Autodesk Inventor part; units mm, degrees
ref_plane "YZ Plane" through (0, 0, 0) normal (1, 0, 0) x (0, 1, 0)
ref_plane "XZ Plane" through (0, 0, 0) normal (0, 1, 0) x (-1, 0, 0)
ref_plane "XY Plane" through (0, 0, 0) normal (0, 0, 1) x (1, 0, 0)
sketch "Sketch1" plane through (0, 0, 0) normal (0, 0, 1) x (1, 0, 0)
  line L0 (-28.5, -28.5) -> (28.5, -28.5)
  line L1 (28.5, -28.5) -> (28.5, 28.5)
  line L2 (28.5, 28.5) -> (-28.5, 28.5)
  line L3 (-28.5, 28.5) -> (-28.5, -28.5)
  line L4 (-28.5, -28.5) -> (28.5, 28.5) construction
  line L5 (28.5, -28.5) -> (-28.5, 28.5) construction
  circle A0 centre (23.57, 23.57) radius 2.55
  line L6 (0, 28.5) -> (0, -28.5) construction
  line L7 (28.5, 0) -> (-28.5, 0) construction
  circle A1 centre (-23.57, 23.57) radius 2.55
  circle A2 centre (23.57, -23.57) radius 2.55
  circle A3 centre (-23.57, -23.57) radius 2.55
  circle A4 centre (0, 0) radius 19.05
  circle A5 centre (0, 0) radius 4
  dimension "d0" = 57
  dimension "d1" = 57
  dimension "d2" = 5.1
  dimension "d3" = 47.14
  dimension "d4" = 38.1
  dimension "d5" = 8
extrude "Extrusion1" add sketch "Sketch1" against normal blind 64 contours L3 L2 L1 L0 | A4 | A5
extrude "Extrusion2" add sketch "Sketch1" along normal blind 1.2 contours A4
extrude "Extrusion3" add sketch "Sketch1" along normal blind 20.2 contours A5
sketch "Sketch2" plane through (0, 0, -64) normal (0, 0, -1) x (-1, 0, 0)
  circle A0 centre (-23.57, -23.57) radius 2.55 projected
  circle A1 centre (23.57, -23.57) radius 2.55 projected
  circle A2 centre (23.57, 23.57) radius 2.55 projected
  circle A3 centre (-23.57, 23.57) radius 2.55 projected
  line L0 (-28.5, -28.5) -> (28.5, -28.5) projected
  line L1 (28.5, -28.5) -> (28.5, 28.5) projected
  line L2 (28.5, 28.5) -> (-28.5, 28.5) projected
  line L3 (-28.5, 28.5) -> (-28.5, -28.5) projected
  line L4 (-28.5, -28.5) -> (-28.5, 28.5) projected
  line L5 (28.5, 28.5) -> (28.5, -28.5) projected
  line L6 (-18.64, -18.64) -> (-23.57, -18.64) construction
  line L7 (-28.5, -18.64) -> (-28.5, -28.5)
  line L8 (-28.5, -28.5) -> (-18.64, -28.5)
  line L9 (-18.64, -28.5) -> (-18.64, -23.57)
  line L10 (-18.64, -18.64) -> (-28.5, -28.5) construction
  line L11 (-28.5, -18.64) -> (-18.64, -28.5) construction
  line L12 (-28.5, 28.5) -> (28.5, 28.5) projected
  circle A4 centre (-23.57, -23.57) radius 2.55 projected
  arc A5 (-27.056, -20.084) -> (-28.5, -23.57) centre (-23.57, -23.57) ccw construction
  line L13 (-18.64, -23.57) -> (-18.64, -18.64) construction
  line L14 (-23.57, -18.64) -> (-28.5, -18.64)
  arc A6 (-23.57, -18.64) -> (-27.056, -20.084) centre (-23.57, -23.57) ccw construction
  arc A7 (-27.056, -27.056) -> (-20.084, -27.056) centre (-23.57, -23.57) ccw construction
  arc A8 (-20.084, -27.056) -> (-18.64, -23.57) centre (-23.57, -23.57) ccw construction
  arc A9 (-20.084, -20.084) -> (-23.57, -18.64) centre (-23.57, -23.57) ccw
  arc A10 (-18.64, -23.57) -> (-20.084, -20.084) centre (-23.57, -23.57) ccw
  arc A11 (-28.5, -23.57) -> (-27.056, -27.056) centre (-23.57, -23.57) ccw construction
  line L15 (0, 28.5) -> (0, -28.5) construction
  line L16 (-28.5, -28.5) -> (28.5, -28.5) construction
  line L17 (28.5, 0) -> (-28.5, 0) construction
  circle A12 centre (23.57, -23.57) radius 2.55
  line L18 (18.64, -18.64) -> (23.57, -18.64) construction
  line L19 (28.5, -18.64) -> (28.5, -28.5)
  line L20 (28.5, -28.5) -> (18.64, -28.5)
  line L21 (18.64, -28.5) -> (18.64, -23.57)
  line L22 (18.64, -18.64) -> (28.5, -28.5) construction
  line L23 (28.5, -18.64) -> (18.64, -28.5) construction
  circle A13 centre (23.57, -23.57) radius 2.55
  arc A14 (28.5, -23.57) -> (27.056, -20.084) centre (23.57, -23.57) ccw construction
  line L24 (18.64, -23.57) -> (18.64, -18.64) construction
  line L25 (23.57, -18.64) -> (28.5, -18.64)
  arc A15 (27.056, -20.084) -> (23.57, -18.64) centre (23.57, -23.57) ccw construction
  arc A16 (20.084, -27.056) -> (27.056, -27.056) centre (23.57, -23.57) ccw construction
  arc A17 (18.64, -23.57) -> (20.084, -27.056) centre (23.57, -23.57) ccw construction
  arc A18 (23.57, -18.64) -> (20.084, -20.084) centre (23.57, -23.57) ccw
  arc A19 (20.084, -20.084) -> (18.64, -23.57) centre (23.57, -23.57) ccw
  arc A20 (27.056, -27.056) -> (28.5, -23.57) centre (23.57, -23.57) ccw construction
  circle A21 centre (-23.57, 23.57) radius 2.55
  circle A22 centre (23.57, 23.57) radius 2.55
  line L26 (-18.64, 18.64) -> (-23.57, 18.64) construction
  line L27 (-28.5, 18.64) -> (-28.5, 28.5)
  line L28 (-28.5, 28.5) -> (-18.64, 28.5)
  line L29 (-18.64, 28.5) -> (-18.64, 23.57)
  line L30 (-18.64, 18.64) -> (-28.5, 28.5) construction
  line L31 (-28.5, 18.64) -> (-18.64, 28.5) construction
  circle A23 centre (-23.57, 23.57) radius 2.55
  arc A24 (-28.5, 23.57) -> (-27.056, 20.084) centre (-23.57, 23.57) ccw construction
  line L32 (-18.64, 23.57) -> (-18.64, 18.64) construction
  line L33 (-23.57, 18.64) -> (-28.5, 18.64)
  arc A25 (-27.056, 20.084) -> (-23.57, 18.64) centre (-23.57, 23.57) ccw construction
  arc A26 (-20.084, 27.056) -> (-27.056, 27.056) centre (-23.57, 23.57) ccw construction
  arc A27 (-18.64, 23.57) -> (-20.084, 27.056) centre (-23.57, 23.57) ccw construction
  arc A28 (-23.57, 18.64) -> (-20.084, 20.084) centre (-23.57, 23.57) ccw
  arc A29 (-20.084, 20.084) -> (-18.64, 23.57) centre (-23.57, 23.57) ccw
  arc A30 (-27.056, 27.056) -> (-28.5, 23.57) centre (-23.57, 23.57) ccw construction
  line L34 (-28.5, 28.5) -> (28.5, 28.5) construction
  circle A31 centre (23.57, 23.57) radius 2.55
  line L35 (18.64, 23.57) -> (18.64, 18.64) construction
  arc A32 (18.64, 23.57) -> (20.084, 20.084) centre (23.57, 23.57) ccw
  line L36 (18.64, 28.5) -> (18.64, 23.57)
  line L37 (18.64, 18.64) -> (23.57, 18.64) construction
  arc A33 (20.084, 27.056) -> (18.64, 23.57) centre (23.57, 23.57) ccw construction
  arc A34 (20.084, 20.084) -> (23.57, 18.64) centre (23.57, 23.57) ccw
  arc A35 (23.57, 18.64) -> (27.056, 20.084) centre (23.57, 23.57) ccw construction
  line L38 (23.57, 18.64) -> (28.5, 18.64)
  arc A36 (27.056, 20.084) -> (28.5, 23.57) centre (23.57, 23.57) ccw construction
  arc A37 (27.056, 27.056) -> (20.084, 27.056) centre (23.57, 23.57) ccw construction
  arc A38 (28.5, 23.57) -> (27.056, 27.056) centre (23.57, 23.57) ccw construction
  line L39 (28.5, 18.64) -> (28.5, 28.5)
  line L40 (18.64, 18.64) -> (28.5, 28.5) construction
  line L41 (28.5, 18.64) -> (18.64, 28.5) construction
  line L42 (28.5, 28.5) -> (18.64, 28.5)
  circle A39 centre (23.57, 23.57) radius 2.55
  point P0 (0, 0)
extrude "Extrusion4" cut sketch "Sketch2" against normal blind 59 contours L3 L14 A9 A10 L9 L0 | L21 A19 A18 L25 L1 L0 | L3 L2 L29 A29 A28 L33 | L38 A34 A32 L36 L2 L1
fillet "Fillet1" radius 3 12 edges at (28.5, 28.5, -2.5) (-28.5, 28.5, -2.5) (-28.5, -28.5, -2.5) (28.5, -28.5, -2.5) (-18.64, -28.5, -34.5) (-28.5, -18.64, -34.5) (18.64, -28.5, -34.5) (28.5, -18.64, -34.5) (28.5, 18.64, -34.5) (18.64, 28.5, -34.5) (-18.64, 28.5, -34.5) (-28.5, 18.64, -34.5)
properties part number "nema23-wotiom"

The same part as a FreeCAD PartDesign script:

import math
import FreeCAD as App
import Part
import Sketcher
from FreeCAD import Vector


def edges_at(feature, points):
    """Names of the edges that pass closest to the given points."""
    edges = feature.Shape.Edges
    near = lambda p: min(range(len(edges)), key=lambda i: edges[i].distToShape(Part.Vertex(*p))[0])
    return sorted({f"Edge{near(p) + 1}" for p in points})

doc = App.newDocument("Part")
body = doc.addObject("PartDesign::Body", "Body")

# Sketch on XY plane
sketch1 = body.newObject("Sketcher::SketchObject", "Sketch")
sketch1.AttachmentSupport = (doc.getObject("XY_Plane"), [""])
sketch1.MapMode = "FlatFace"
sketch1.addGeometry(Part.LineSegment(Vector(-28.5, 28.5, 0), Vector(-28.5, -28.5, 0)), False)
sketch1.addGeometry(Part.LineSegment(Vector(-28.5, -28.5, 0), Vector(28.5, -28.5, 0)), False)
sketch1.addGeometry(Part.LineSegment(Vector(28.5, -28.5, 0), Vector(28.5, 28.5, 0)), False)
sketch1.addGeometry(Part.LineSegment(Vector(28.5, 28.5, 0), Vector(-28.5, 28.5, 0)), False)
sketch1.addGeometry(Part.Circle(Vector(-23.6, -23.6, 0), Vector(0, 0, 1), 2.5), False)
sketch1.addGeometry(Part.Circle(Vector(23.6, -23.6, 0), Vector(0, 0, 1), 2.5), False)
sketch1.addGeometry(Part.Circle(Vector(-23.6, 23.6, 0), Vector(0, 0, 1), 2.5), False)
sketch1.addGeometry(Part.Circle(Vector(23.6, 23.6, 0), Vector(0, 0, 1), 2.5), False)
sketch1.addConstraint(Sketcher.Constraint("Coincident", 0, 2, 1, 1))
sketch1.addConstraint(Sketcher.Constraint("Coincident", 1, 2, 2, 1))
sketch1.addConstraint(Sketcher.Constraint("Coincident", 2, 2, 3, 1))
sketch1.addConstraint(Sketcher.Constraint("Coincident", 3, 2, 0, 1))
sketch1.addConstraint(Sketcher.Constraint("Vertical", 0))
sketch1.addConstraint(Sketcher.Constraint("Horizontal", 1))
sketch1.addConstraint(Sketcher.Constraint("Vertical", 2))
sketch1.addConstraint(Sketcher.Constraint("Horizontal", 3))
sketch1.addConstraint(Sketcher.Constraint("Equal", 4, 5))
sketch1.addConstraint(Sketcher.Constraint("Equal", 5, 6))
sketch1.addConstraint(Sketcher.Constraint("Equal", 6, 7))
sketch1.addConstraint(Sketcher.Constraint("Symmetric", 5, 3, 6, 3, -1, 1))
sketch1.addConstraint(Sketcher.Constraint("Symmetric", 4, 3, 7, 3, -1, 1))
sketch1.addConstraint(Sketcher.Constraint("Symmetric", 0, 2, 2, 2, -1, 1))
sketch1.addConstraint(Sketcher.Constraint("Symmetric", 4, 3, 5, 3, -2))
sketch1.addConstraint(Sketcher.Constraint("Equal", 3, 0))
sketch1.addConstraint(Sketcher.Constraint("Diameter", 4, 5.1))
sketch1.addConstraint(Sketcher.Constraint("DistanceX", 1, 1, 1, 2, 57.0))
sketch1.addConstraint(Sketcher.Constraint("DistanceX", 4, 3, 5, 3, 47.14))
sketch1.addConstraint(Sketcher.Constraint("DistanceY", 4, 3, 6, 3, 47.14))
pad1 = body.newObject("PartDesign::Pad", "Pad")
pad1.Profile = sketch1
pad1.Length = 64
pad1.Reversed = True

# Sketch on XY plane
sketch2 = body.newObject("Sketcher::SketchObject", "Sketch001")
sketch2.AttachmentSupport = (doc.getObject("XY_Plane"), [""])
sketch2.MapMode = "FlatFace"
sketch2.addGeometry(Part.Circle(Vector(0, 0, 0), Vector(0, 0, 1), 19.1), False)
sketch2.addGeometry(Part.Circle(Vector(0, 0, 0), Vector(0, 0, 1), 4), False)
sketch2.addConstraint(Sketcher.Constraint("Coincident", 0, 3, -1, 1))
sketch2.addConstraint(Sketcher.Constraint("Coincident", 1, 3, -1, 1))
sketch2.addConstraint(Sketcher.Constraint("Diameter", 1, 8.0))
sketch2.addConstraint(Sketcher.Constraint("Diameter", 0, 38.1))
pad2 = body.newObject("PartDesign::Pad", "Pad001")
pad2.Profile = sketch2
pad2.Length = 1.2

# Sketch on XY plane
sketch3 = body.newObject("Sketcher::SketchObject", "Sketch002")
sketch3.AttachmentSupport = (doc.getObject("XY_Plane"), [""])
sketch3.MapMode = "FlatFace"
sketch3.addGeometry(Part.Circle(Vector(0, 0, 0), Vector(0, 0, 1), 4), False)
sketch3.addConstraint(Sketcher.Constraint("Coincident", 0, 3, -1, 1))
sketch3.addConstraint(Sketcher.Constraint("Diameter", 0, 8.0))
pad3 = body.newObject("PartDesign::Pad", "Pad002")
pad3.Profile = sketch3
pad3.Length = 20.2

# Sketch on XY plane
sketch4 = body.newObject("Sketcher::SketchObject", "Sketch003")
sketch4.AttachmentSupport = (doc.getObject("XY_Plane"), [""])
sketch4.MapMode = "FlatFace"
sketch4.AttachmentOffset = App.Placement(Vector(0, 0, -64), App.Rotation())
sketch4.addGeometry(Part.LineSegment(Vector(28.5, -18.6, 0), Vector(28.5, -28.5, 0)), False)
sketch4.addGeometry(Part.LineSegment(Vector(28.5, -28.5, 0), Vector(18.6, -28.5, 0)), False)
sketch4.addGeometry(Part.LineSegment(Vector(18.6, -28.5, 0), Vector(18.6, -23.6, 0)), False)
sketch4.addGeometry(Part.ArcOfCircle(Part.Circle(Vector(23.6, -23.6, 0), Vector(0, 0, 1), 4.9), math.radians(135), math.radians(180)), False)
sketch4.addGeometry(Part.ArcOfCircle(Part.Circle(Vector(23.6, -23.6, 0), Vector(0, 0, 1), 4.9), math.radians(90), math.radians(135)), False)
sketch4.addGeometry(Part.LineSegment(Vector(23.6, -18.6, 0), Vector(28.5, -18.6, 0)), False)
sketch4.addGeometry(Part.Circle(Vector(23.6, -23.6, 0), Vector(0, 0, 1), 2.5), False)
sketch4.addGeometry(Part.LineSegment(Vector(-18.6, -23.6, 0), Vector(-18.6, -28.5, 0)), False)
sketch4.addGeometry(Part.LineSegment(Vector(-18.6, -28.5, 0), Vector(-28.5, -28.5, 0)), False)
sketch4.addGeometry(Part.LineSegment(Vector(-28.5, -28.5, 0), Vector(-28.5, -18.6, 0)), False)
sketch4.addGeometry(Part.LineSegment(Vector(-28.5, -18.6, 0), Vector(-23.6, -18.6, 0)), False)
sketch4.addGeometry(Part.ArcOfCircle(Part.Circle(Vector(-23.6, -23.6, 0), Vector(0, 0, 1), 4.9), math.radians(45), math.radians(90)), False)
sketch4.addGeometry(Part.ArcOfCircle(Part.Circle(Vector(-23.6, -23.6, 0), Vector(0, 0, 1), 4.9), math.radians(0), math.radians(45)), False)
sketch4.addGeometry(Part.Circle(Vector(-23.6, -23.6, 0), Vector(0, 0, 1), 2.5), False)
sketch4.addGeometry(Part.LineSegment(Vector(28.5, 28.5, 0), Vector(28.5, 18.6, 0)), False)
sketch4.addGeometry(Part.LineSegment(Vector(28.5, 18.6, 0), Vector(23.6, 18.6, 0)), False)
sketch4.addGeometry(Part.ArcOfCircle(Part.Circle(Vector(23.6, 23.6, 0), Vector(0, 0, 1), 4.9), math.radians(-135), math.radians(-90)), False)
sketch4.addGeometry(Part.ArcOfCircle(Part.Circle(Vector(23.6, 23.6, 0), Vector(0, 0, 1), 4.9), math.radians(180), math.radians(225)), False)
sketch4.addGeometry(Part.LineSegment(Vector(18.6, 23.6, 0), Vector(18.6, 28.5, 0)), False)
sketch4.addGeometry(Part.LineSegment(Vector(18.6, 28.5, 0), Vector(28.5, 28.5, 0)), False)
sketch4.addGeometry(Part.Circle(Vector(23.6, 23.6, 0), Vector(0, 0, 1), 2.5), False)
sketch4.addGeometry(Part.LineSegment(Vector(-23.6, 18.6, 0), Vector(-28.5, 18.6, 0)), False)
sketch4.addGeometry(Part.LineSegment(Vector(-28.5, 18.6, 0), Vector(-28.5, 28.5, 0)), False)
sketch4.addGeometry(Part.LineSegment(Vector(-28.5, 28.5, 0), Vector(-18.6, 28.5, 0)), False)
sketch4.addGeometry(Part.LineSegment(Vector(-18.6, 28.5, 0), Vector(-18.6, 23.6, 0)), False)
sketch4.addGeometry(Part.ArcOfCircle(Part.Circle(Vector(-23.6, 23.6, 0), Vector(0, 0, 1), 4.9), math.radians(-45), math.radians(0)), False)
sketch4.addGeometry(Part.ArcOfCircle(Part.Circle(Vector(-23.6, 23.6, 0), Vector(0, 0, 1), 4.9), math.radians(-90), math.radians(-45)), False)
sketch4.addGeometry(Part.Circle(Vector(-23.6, 23.6, 0), Vector(0, 0, 1), 2.5), False)
sketch4.addConstraint(Sketcher.Constraint("Coincident", 0, 2, 1, 1))
sketch4.addConstraint(Sketcher.Constraint("Coincident", 1, 2, 2, 1))
sketch4.addConstraint(Sketcher.Constraint("Tangent", 2, 2, 3, 2))
sketch4.addConstraint(Sketcher.Constraint("Tangent", 3, 1, 4, 2))
sketch4.addConstraint(Sketcher.Constraint("Tangent", 4, 1, 5, 1))
sketch4.addConstraint(Sketcher.Constraint("Coincident", 5, 2, 0, 1))
sketch4.addConstraint(Sketcher.Constraint("Coincident", 7, 2, 8, 1))
sketch4.addConstraint(Sketcher.Constraint("Coincident", 8, 2, 9, 1))
sketch4.addConstraint(Sketcher.Constraint("Coincident", 9, 2, 10, 1))
sketch4.addConstraint(Sketcher.Constraint("Tangent", 10, 2, 11, 2))
sketch4.addConstraint(Sketcher.Constraint("Tangent", 11, 1, 12, 2))
sketch4.addConstraint(Sketcher.Constraint("Tangent", 12, 1, 7, 1))
sketch4.addConstraint(Sketcher.Constraint("Coincident", 14, 2, 15, 1))
sketch4.addConstraint(Sketcher.Constraint("Tangent", 15, 2, 16, 2))
sketch4.addConstraint(Sketcher.Constraint("Tangent", 16, 1, 17, 2))
sketch4.addConstraint(Sketcher.Constraint("Tangent", 17, 1, 18, 1))
sketch4.addConstraint(Sketcher.Constraint("Coincident", 18, 2, 19, 1))
sketch4.addConstraint(Sketcher.Constraint("Coincident", 19, 2, 14, 1))
sketch4.addConstraint(Sketcher.Constraint("Coincident", 21, 2, 22, 1))
sketch4.addConstraint(Sketcher.Constraint("Coincident", 22, 2, 23, 1))
sketch4.addConstraint(Sketcher.Constraint("Coincident", 23, 2, 24, 1))
sketch4.addConstraint(Sketcher.Constraint("Tangent", 24, 2, 25, 2))
sketch4.addConstraint(Sketcher.Constraint("Tangent", 25, 1, 26, 2))
sketch4.addConstraint(Sketcher.Constraint("Tangent", 26, 1, 21, 1))
sketch4.addConstraint(Sketcher.Constraint("Vertical", 0))
sketch4.addConstraint(Sketcher.Constraint("Horizontal", 1))
sketch4.addConstraint(Sketcher.Constraint("Vertical", 2))
sketch4.addConstraint(Sketcher.Constraint("Horizontal", 5))
sketch4.addConstraint(Sketcher.Constraint("Vertical", 7))
sketch4.addConstraint(Sketcher.Constraint("Horizontal", 8))
sketch4.addConstraint(Sketcher.Constraint("Vertical", 9))
sketch4.addConstraint(Sketcher.Constraint("Horizontal", 10))
sketch4.addConstraint(Sketcher.Constraint("Vertical", 14))
sketch4.addConstraint(Sketcher.Constraint("Horizontal", 15))
sketch4.addConstraint(Sketcher.Constraint("Vertical", 18))
sketch4.addConstraint(Sketcher.Constraint("Horizontal", 19))
sketch4.addConstraint(Sketcher.Constraint("Horizontal", 21))
sketch4.addConstraint(Sketcher.Constraint("Vertical", 22))
sketch4.addConstraint(Sketcher.Constraint("Horizontal", 23))
sketch4.addConstraint(Sketcher.Constraint("Vertical", 24))
sketch4.addConstraint(Sketcher.Constraint("Coincident", 6, 3, 3, 3))
sketch4.addConstraint(Sketcher.Constraint("Coincident", 13, 3, 11, 3))
sketch4.addConstraint(Sketcher.Constraint("Coincident", 20, 3, 16, 3))
sketch4.addConstraint(Sketcher.Constraint("Coincident", 27, 3, 25, 3))
sketch4.addConstraint(Sketcher.Constraint("Equal", 3, 4))
sketch4.addConstraint(Sketcher.Constraint("Equal", 4, 11))
sketch4.addConstraint(Sketcher.Constraint("Equal", 11, 12))
sketch4.addConstraint(Sketcher.Constraint("Equal", 6, 13))
sketch4.addConstraint(Sketcher.Constraint("Equal", 12, 16))
sketch4.addConstraint(Sketcher.Constraint("Equal", 16, 17))
sketch4.addConstraint(Sketcher.Constraint("Equal", 13, 20))
sketch4.addConstraint(Sketcher.Constraint("Equal", 17, 25))
sketch4.addConstraint(Sketcher.Constraint("Equal", 25, 26))
sketch4.addConstraint(Sketcher.Constraint("Equal", 20, 27))
sketch4.addConstraint(Sketcher.Constraint("Symmetric", 11, 3, 16, 3, -1, 1))
sketch4.addConstraint(Sketcher.Constraint("Symmetric", 3, 3, 25, 3, -1, 1))
sketch4.addConstraint(Sketcher.Constraint("Symmetric", 8, 2, 19, 2, -1, 1))
sketch4.addConstraint(Sketcher.Constraint("Symmetric", 0, 2, 22, 2, -1, 1))
sketch4.addConstraint(Sketcher.Constraint("Symmetric", 3, 3, 11, 3, -2))
sketch4.addConstraint(Sketcher.Constraint("Symmetric", 0, 2, 8, 2, -2))
sketch4.addConstraint(Sketcher.Constraint("Horizontal", 3, 1, 11, 1))
sketch4.addConstraint(Sketcher.Constraint("Horizontal", 16, 1, 25, 1))
sketch4.addConstraint(Sketcher.Constraint("Vertical", 3, 1, 16, 1))
sketch4.addConstraint(Sketcher.Constraint("Equal", 23, 0))
sketch4.addConstraint(Sketcher.Constraint("Diameter", 6, 5.1))
sketch4.addConstraint(Sketcher.Constraint("Radius", 3, 4.93))
sketch4.addConstraint(Sketcher.Constraint("DistanceX", 1, 2, 1, 1, 9.86))
sketch4.addConstraint(Sketcher.Constraint("DistanceX", -1, 1, 0, 2, 28.5))
sketch4.addConstraint(Sketcher.Constraint("DistanceY", 0, 2, -1, 1, 28.5))
sketch4.addConstraint(Sketcher.Constraint("DistanceX", -1, 1, 3, 1, 20.084))
pocket1 = body.newObject("PartDesign::Pocket", "Pocket")
pocket1.Profile = sketch4
pocket1.Length = 59
pocket1.Reversed = True
doc.recompute()

fillet = body.newObject("PartDesign::Fillet", "Fillet")
fillet.Base = (pocket1, edges_at(pocket1, [
    (28.5, 28.5, -2.5),
    (-28.5, 28.5, -2.5),
    (-28.5, -28.5, -2.5),
    (28.5, -28.5, -2.5),
    (-18.64, -28.5, -34.5),
    (-28.5, -18.64, -34.5),
    (18.64, -28.5, -34.5),
    (28.5, -18.64, -34.5),
    (28.5, 18.64, -34.5),
    (18.64, 28.5, -34.5),
    (-18.64, 28.5, -34.5),
    (-28.5, 18.64, -34.5),
]))
fillet.Radius = 3

doc.recompute()
